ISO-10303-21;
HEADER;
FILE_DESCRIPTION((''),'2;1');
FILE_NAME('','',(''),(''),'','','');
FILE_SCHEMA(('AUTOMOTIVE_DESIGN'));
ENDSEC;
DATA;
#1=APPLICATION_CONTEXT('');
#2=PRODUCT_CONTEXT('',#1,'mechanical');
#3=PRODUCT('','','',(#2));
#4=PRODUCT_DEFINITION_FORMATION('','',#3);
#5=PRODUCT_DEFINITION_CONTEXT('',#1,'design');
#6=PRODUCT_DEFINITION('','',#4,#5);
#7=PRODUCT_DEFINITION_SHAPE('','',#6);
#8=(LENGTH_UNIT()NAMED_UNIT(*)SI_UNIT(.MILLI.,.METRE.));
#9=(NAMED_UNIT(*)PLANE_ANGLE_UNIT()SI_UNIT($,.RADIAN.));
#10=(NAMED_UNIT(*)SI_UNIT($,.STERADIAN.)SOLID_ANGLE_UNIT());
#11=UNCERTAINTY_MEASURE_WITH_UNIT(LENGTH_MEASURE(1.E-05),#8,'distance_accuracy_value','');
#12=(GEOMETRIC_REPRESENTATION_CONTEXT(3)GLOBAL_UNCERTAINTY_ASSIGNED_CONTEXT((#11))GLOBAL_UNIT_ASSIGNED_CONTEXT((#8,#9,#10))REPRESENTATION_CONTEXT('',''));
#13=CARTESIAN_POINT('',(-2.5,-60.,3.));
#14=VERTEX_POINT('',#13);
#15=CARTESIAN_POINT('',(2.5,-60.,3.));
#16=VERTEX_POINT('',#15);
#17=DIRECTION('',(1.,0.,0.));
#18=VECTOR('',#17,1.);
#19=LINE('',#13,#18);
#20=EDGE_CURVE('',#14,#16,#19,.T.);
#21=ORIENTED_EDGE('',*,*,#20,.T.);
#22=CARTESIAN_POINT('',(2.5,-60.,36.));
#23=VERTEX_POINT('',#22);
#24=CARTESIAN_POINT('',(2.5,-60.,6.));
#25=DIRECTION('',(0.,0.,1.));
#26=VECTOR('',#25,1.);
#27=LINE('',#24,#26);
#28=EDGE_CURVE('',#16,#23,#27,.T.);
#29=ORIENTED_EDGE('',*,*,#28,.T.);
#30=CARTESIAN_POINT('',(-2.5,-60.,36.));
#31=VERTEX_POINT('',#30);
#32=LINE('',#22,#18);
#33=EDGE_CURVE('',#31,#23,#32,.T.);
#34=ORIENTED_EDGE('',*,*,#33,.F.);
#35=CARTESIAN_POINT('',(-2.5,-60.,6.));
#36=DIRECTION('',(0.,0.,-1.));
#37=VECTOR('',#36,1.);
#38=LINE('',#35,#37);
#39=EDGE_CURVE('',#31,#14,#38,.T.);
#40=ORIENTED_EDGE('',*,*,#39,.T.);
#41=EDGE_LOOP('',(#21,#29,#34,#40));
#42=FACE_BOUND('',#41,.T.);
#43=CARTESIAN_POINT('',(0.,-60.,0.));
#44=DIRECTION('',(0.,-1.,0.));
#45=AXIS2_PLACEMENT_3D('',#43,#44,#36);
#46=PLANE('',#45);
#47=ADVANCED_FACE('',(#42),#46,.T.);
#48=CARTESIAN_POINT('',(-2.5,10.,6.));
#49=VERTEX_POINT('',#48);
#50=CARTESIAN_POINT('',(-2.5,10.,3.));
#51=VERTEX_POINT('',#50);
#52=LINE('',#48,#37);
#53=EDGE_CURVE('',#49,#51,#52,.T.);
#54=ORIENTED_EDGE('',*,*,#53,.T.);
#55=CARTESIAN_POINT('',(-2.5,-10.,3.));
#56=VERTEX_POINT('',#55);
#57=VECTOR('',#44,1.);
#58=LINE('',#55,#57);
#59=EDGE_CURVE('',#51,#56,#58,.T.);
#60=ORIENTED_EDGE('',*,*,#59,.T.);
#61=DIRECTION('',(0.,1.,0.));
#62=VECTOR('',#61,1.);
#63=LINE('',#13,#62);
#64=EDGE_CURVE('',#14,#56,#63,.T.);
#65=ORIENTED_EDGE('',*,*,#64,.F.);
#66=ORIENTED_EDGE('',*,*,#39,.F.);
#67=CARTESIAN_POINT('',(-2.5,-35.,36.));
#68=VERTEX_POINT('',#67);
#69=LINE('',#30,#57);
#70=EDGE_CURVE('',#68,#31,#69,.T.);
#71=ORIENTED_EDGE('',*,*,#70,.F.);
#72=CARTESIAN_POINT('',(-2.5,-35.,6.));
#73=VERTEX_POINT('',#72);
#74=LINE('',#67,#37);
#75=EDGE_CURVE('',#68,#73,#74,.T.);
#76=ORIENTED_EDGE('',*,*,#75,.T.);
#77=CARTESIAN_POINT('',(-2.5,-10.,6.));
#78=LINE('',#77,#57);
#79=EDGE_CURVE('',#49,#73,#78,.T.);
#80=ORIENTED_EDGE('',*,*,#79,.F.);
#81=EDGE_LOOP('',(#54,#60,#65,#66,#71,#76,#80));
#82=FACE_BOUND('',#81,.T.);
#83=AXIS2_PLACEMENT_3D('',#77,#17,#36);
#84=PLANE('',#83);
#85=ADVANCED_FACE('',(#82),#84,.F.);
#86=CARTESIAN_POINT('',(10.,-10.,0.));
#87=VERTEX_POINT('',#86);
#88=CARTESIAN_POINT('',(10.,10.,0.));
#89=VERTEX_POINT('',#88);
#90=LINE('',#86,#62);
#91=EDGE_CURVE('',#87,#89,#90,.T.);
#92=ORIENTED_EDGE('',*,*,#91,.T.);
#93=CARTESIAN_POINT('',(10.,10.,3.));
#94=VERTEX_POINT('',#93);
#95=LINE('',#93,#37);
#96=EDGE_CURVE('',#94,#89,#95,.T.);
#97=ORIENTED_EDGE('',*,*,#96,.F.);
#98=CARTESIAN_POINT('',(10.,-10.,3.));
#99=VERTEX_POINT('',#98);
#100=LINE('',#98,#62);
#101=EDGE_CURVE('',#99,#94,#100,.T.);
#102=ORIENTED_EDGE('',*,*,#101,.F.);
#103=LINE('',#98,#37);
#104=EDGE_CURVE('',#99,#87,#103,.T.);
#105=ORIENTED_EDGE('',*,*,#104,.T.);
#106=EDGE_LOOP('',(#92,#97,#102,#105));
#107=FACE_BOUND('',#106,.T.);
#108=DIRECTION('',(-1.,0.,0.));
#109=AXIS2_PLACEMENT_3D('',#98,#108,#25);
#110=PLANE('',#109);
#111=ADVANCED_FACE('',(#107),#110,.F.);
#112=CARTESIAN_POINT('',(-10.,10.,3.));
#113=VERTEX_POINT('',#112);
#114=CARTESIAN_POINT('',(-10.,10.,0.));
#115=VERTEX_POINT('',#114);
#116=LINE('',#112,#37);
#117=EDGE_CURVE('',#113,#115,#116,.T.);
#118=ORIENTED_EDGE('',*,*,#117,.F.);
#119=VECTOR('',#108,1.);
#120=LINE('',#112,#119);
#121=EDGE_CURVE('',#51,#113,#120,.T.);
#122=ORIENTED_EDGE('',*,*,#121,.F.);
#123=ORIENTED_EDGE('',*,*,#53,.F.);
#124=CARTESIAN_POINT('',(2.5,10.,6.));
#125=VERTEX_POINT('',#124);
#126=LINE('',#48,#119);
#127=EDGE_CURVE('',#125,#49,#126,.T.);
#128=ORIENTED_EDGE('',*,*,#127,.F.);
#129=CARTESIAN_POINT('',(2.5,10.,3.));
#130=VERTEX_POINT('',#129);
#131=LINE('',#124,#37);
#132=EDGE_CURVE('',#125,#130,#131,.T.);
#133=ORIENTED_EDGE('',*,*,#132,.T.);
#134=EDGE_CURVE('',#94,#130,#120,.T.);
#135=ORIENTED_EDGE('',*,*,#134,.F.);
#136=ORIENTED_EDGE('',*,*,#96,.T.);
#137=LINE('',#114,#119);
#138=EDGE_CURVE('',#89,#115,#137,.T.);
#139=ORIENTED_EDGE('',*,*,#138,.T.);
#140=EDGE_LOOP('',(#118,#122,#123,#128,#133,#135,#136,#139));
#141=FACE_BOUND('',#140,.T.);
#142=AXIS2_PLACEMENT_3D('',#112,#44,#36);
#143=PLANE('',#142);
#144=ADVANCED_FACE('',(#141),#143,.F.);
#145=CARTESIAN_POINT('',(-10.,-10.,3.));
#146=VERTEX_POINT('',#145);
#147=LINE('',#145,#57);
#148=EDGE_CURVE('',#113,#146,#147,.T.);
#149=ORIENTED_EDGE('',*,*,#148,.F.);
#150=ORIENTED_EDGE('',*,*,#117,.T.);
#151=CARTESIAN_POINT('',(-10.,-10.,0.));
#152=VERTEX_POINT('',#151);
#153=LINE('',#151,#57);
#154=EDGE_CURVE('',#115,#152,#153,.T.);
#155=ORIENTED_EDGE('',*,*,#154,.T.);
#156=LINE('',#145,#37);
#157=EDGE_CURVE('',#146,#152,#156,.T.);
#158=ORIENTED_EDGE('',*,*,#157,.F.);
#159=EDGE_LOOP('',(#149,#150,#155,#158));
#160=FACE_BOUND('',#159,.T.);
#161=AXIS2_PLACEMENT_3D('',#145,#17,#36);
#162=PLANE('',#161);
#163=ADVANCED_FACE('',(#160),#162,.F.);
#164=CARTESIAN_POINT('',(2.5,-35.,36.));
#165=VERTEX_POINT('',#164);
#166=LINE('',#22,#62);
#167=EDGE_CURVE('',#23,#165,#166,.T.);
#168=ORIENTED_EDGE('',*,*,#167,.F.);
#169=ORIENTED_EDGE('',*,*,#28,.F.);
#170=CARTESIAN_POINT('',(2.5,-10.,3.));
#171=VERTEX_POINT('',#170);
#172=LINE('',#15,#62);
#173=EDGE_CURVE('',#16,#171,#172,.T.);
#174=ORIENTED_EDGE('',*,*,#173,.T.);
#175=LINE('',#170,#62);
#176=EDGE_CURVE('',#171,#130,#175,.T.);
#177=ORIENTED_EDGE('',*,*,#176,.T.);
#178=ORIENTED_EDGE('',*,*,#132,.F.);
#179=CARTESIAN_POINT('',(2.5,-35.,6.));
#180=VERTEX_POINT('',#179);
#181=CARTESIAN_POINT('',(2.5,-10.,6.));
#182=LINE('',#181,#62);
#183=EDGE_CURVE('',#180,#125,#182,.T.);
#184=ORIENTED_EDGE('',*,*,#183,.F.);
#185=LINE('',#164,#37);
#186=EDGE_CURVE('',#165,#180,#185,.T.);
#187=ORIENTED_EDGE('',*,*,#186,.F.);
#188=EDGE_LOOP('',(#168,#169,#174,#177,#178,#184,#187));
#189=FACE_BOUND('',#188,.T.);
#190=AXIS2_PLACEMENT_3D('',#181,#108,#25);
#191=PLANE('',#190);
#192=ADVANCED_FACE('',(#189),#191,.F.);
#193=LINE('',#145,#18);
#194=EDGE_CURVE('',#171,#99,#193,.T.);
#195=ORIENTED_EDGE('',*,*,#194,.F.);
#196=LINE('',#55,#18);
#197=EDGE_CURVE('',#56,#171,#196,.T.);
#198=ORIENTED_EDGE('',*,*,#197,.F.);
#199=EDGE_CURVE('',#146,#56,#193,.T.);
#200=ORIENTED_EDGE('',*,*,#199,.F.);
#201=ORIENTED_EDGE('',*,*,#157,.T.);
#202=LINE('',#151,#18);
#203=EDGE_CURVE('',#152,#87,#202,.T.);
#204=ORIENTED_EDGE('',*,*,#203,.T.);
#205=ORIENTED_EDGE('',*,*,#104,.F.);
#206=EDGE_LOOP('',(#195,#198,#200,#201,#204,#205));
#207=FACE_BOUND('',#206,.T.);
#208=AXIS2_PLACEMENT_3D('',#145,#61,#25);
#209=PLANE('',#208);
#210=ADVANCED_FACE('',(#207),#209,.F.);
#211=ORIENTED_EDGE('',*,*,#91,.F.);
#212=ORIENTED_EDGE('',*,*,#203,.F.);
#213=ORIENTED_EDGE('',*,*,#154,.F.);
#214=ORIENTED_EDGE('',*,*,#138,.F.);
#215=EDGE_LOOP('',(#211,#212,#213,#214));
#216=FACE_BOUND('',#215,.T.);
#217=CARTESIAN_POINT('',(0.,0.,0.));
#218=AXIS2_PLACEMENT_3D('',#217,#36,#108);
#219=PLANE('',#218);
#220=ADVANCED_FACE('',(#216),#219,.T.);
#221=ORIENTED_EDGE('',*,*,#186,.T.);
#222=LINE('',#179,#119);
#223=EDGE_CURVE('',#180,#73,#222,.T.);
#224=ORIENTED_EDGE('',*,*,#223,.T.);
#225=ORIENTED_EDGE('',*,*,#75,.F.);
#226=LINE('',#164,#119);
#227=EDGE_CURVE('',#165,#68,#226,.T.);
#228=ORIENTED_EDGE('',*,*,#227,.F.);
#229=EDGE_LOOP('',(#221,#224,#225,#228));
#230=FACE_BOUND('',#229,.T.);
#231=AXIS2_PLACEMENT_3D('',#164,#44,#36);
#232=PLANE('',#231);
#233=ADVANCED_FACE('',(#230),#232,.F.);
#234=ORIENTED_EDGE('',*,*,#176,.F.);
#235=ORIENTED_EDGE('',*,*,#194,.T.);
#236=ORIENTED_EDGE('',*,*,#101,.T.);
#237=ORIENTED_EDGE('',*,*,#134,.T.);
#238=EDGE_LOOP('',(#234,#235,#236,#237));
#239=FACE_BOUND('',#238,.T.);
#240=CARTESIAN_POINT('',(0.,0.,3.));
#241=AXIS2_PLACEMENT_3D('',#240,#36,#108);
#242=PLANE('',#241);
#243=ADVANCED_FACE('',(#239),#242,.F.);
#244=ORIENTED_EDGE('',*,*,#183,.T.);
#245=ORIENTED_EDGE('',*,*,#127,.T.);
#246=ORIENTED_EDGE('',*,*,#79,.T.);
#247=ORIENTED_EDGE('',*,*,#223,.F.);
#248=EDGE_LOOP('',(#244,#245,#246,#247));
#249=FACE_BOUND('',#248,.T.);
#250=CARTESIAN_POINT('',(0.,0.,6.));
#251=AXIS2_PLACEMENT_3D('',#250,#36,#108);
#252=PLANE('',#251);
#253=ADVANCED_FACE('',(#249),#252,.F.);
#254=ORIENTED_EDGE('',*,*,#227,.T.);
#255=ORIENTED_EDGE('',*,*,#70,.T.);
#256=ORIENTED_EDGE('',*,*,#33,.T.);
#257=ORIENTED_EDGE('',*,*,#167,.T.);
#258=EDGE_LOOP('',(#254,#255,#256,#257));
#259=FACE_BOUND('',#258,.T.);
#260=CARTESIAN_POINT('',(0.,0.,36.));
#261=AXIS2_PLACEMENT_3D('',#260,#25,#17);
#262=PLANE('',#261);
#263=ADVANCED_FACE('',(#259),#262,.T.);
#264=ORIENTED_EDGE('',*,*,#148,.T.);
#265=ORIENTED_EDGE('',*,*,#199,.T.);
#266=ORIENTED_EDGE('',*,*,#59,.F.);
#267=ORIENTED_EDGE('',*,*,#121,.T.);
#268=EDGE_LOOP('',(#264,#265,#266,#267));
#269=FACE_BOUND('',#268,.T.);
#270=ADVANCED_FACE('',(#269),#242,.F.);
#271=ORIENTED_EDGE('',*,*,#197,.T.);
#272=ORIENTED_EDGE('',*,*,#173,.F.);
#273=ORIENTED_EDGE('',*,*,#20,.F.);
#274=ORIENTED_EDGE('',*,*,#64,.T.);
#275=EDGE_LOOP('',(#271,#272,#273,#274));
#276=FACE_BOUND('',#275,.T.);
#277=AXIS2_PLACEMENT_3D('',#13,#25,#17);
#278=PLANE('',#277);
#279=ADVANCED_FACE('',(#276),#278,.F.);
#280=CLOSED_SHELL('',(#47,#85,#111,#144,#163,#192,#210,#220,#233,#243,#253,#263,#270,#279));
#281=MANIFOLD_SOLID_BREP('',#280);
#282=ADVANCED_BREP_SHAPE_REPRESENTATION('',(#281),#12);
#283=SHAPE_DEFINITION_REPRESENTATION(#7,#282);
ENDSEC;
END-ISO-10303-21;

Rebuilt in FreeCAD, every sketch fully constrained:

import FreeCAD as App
import Part
import Sketcher

V = App.Vector
Q = App.Units.Quantity


def add_polygon(sketch, points):
    """Adds a closed chain of lines whose ends are joined by coincident constraints."""
    first, n = sketch.GeometryCount, len(points)
    for a, b in zip(points, points[1:] + points[:1]):
        sketch.addGeometry(Part.LineSegment(App.Vector(*a, 0), App.Vector(*b, 0)), False)
    for i in range(n):
        sketch.addConstraint(Sketcher.Constraint("Coincident", first + i, 2, first + (i + 1) % n, 1))

doc = App.newDocument("Part")
body = doc.addObject("PartDesign::Body", "Body")

# Sketch on XY plane
sketch1 = body.newObject("Sketcher::SketchObject", "Sketch")
sketch1.AttachmentSupport = (doc.getObject("XY_Plane"), [""])
sketch1.MapMode = "FlatFace"
add_polygon(sketch1, [(-10, 10), (-10, -10), (10, -10), (10, 10)])  # lines 0-3
sketch1.addConstraint([
    Sketcher.Constraint("Vertical", 0),
    Sketcher.Constraint("Horizontal", 1),
    Sketcher.Constraint("Vertical", 2),
    Sketcher.Constraint("Horizontal", 3),
    Sketcher.Constraint("Symmetric", 0, 2, 2, 2, -1, 1),
    Sketcher.Constraint("Equal", 3, 0),
    Sketcher.Constraint("DistanceX", 1, 1, 1, 2, Q("20 mm")),
])
pad1 = body.newObject("PartDesign::Pad", "Pad")
pad1.Profile = sketch1
pad1.Length = 3

# Sketch on XY plane
sketch2 = body.newObject("Sketcher::SketchObject", "Sketch001")
sketch2.AttachmentSupport = (doc.getObject("XY_Plane"), [""])
sketch2.MapMode = "FlatFace"
sketch2.AttachmentOffset = App.Placement(V(0, 0, 3), App.Rotation())
add_polygon(sketch2, [(-2, 10), (-2, -10), (2, -10), (2, 10)])  # lines 0-3
sketch2.addConstraint([
    Sketcher.Constraint("Vertical", 0),
    Sketcher.Constraint("Horizontal", 1),
    Sketcher.Constraint("Vertical", 2),
    Sketcher.Constraint("Horizontal", 3),
    Sketcher.Constraint("Symmetric", 0, 2, 2, 2, -1, 1),
    Sketcher.Constraint("DistanceX", 1, 1, 1, 2, Q("5 mm")),
    Sketcher.Constraint("DistanceY", 0, 2, 0, 1, Q("20 mm")),
])
pad2 = body.newObject("PartDesign::Pad", "Pad001")
pad2.Profile = sketch2
pad2.Length = 3

# Sketch on XZ plane
sketch3 = body.newObject("Sketcher::SketchObject", "Sketch002")
sketch3.AttachmentSupport = (doc.getObject("XZ_Plane"), [""])
sketch3.MapMode = "FlatFace"
sketch3.AttachmentOffset = App.Placement(V(0, 0, 10), App.Rotation())
add_polygon(sketch3, [(-2.5, 6), (-2.5, 3), (2.5, 3), (2.5, 6)])  # lines 0-3
sketch3.addConstraint([
    Sketcher.Constraint("Vertical", 0),
    Sketcher.Constraint("Horizontal", 1),
    Sketcher.Constraint("Vertical", 2),
    Sketcher.Constraint("Horizontal", 3),
    Sketcher.Constraint("DistanceX", 1, 1, 1, 2, Q("5 mm")),
    Sketcher.Constraint("DistanceY", 0, 2, 0, 1, Q("3 mm")),
    Sketcher.Constraint("DistanceY", -1, 1, 0, 2, Q("3 mm")),
    Sketcher.Constraint("DistanceX", 0, 2, -1, 1, Q("2.5 mm")),
])
pad3 = body.newObject("PartDesign::Pad", "Pad002")
pad3.Profile = sketch3
pad3.Length = 50

# Sketch on XY plane
sketch4 = body.newObject("Sketcher::SketchObject", "Sketch003")
sketch4.AttachmentSupport = (doc.getObject("XY_Plane"), [""])
sketch4.MapMode = "FlatFace"
sketch4.AttachmentOffset = App.Placement(V(0, 0, 6), App.Rotation())
add_polygon(sketch4, [(-2, -35), (-2, -60), (2, -60), (2, -35)])  # lines 0-3
sketch4.addConstraint([
    Sketcher.Constraint("Vertical", 0),
    Sketcher.Constraint("Horizontal", 1),
    Sketcher.Constraint("Vertical", 2),
    Sketcher.Constraint("Horizontal", 3),
    Sketcher.Constraint("DistanceX", 1, 1, 1, 2, Q("5 mm")),
    Sketcher.Constraint("DistanceY", 0, 2, 0, 1, Q("25 mm")),
    Sketcher.Constraint("DistanceY", 0, 2, -1, 1, Q("60 mm")),
    Sketcher.Constraint("DistanceX", 0, 2, -1, 1, Q("2.5 mm")),
])
pad4 = body.newObject("PartDesign::Pad", "Pad003")
pad4.Profile = sketch4
pad4.Length = 30

doc.recompute()
